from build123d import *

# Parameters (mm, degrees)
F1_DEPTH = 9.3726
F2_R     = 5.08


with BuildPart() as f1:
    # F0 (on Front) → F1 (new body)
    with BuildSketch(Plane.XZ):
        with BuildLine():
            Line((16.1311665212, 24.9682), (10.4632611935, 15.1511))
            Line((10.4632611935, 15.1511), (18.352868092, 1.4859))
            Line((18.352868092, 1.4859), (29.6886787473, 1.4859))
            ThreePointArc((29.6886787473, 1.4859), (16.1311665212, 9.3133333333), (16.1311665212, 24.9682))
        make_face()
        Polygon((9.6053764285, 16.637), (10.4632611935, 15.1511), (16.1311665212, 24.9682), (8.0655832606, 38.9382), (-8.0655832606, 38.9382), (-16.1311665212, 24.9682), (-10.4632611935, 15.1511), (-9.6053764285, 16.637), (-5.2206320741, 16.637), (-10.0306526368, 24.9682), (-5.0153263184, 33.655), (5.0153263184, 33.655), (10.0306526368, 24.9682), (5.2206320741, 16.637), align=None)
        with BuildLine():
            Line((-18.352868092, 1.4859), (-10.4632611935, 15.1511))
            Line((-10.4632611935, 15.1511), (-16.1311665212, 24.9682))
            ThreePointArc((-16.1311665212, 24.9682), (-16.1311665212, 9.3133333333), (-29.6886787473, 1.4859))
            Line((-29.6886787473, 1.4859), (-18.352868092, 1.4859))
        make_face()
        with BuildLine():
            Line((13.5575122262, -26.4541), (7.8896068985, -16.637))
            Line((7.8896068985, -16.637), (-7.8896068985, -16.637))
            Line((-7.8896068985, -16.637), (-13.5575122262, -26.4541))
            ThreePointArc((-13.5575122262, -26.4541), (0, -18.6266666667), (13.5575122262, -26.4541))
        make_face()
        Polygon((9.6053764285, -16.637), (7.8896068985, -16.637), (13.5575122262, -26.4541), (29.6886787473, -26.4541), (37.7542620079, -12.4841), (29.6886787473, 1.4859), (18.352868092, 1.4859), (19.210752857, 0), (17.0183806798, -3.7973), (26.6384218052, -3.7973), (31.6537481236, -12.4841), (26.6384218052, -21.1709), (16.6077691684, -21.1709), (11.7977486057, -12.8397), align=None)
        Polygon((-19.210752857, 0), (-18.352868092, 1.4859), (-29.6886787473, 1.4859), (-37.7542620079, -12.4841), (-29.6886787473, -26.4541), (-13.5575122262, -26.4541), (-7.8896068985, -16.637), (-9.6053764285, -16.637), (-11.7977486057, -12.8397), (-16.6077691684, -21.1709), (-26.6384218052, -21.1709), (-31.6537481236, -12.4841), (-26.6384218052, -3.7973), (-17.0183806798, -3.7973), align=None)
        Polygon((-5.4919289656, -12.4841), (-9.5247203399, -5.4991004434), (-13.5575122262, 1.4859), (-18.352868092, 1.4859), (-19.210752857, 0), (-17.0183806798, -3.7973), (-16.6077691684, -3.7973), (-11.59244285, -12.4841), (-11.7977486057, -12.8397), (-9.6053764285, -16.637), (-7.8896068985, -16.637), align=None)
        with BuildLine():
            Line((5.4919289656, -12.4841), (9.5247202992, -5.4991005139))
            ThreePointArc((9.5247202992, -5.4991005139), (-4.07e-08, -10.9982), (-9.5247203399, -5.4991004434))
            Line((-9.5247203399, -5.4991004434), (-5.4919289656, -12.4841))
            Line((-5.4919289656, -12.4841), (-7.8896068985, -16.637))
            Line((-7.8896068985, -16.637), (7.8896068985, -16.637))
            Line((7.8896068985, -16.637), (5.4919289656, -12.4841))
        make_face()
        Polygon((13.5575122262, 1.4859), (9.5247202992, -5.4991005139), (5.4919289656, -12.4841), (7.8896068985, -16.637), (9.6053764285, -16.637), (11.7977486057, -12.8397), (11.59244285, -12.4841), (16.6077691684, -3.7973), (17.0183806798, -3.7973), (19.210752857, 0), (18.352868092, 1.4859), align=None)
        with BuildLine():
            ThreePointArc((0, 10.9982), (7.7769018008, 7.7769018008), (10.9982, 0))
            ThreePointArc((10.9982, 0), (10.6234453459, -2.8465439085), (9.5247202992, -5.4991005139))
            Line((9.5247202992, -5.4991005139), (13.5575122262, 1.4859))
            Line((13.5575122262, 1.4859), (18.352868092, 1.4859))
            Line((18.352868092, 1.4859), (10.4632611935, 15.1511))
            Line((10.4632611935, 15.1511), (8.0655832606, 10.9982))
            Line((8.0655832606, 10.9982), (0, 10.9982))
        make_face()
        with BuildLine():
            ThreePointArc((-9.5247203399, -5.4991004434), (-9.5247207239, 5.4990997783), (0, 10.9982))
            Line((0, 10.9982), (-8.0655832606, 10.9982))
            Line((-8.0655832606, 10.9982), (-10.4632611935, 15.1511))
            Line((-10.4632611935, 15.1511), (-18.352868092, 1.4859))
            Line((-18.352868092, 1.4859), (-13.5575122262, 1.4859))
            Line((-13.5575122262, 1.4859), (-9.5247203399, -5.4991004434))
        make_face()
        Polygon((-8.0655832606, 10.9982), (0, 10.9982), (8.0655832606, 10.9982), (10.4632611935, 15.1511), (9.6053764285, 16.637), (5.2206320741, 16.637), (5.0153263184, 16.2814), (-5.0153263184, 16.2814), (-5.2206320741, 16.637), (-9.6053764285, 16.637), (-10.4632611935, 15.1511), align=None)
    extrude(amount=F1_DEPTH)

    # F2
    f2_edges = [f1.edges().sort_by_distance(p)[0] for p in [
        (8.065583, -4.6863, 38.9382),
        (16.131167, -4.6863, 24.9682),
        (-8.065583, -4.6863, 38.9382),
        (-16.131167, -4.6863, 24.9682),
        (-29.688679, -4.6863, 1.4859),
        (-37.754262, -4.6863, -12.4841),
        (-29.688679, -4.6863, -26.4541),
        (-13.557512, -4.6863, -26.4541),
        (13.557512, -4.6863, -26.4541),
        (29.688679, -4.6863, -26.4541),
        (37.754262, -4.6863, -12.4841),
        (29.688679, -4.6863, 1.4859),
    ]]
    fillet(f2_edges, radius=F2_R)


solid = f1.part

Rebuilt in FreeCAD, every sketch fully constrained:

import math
import FreeCAD as App
import Part
import Sketcher
from FreeCAD import Vector
Q = App.Units.Quantity


def edges_at(feature, points):
    """Names of the edges that pass closest to the given points."""
    edges = feature.Shape.Edges
    near = lambda p: min(range(len(edges)), key=lambda i: edges[i].distToShape(Part.Vertex(*p))[0])
    return sorted({f"Edge{near(p) + 1}" for p in points})


def add_polygon(sketch, points):
    """Adds a closed chain of lines whose ends are joined by coincident constraints."""
    first, n = sketch.GeometryCount, len(points)
    for a, b in zip(points, points[1:] + points[:1]):
        sketch.addGeometry(Part.LineSegment(App.Vector(*a, 0), App.Vector(*b, 0)), False)
    for i in range(n):
        sketch.addConstraint(Sketcher.Constraint("Coincident", first + i, 2, first + (i + 1) % n, 1))

doc = App.newDocument("Part")
body = doc.addObject("PartDesign::Body", "Body")

# Sketch on XZ plane
sketch1 = body.newObject("Sketcher::SketchObject", "Sketch")
sketch1.AttachmentSupport = (doc.getObject("XZ_Plane"), [""])
sketch1.MapMode = "FlatFace"
sketch1.addGeometry(Part.ArcOfCircle(Part.Circle(Vector(0, -34.28, 0), Vector(0, 0, 1), 15.65), math.radians(30), math.radians(150)), False)  # 0
sketch1.addGeometry(Part.LineSegment(Vector(13.56, -26.45, 0), Vector(29.69, -26.45, 0)), False)  # 1
sketch1.addGeometry(Part.LineSegment(Vector(29.69, -26.45, 0), Vector(37.75, -12.48, 0)), False)  # 2
sketch1.addGeometry(Part.LineSegment(Vector(37.75, -12.48, 0), Vector(29.69, 1.49, 0)), False)  # 3
sketch1.addGeometry(Part.ArcOfCircle(Part.Circle(Vector(29.69, 17.14, 0), Vector(0, 0, 1), 15.65), math.radians(150), math.radians(270)), False)  # 4
sketch1.addGeometry(Part.LineSegment(Vector(16.13, 24.97, 0), Vector(8.07, 38.94, 0)), False)  # 5
sketch1.addGeometry(Part.LineSegment(Vector(8.07, 38.94, 0), Vector(-8.07, 38.94, 0)), False)  # 6
sketch1.addGeometry(Part.LineSegment(Vector(-8.07, 38.94, 0), Vector(-16.13, 24.97, 0)), False)  # 7
sketch1.addGeometry(Part.ArcOfCircle(Part.Circle(Vector(-29.69, 17.14, 0), Vector(0, 0, 1), 15.65), math.radians(-90), math.radians(30)), False)  # 8
sketch1.addGeometry(Part.LineSegment(Vector(-29.69, 1.49, 0), Vector(-37.75, -12.48, 0)), False)  # 9
sketch1.addGeometry(Part.LineSegment(Vector(-37.75, -12.48, 0), Vector(-29.69, -26.45, 0)), False)  # 10
sketch1.addGeometry(Part.LineSegment(Vector(-29.69, -26.45, 0), Vector(-13.56, -26.45, 0)), False)  # 11
add_polygon(sketch1, [(-11.8, -12.84), (-16.61, -21.17), (-26.64, -21.17), (-31.65, -12.48), (-26.64, -3.8), (-16.61, -3.8), (-11.59, -12.48)])  # lines 12-18
add_polygon(sketch1, [(26.64, -3.8), (31.65, -12.48), (26.64, -21.17), (16.61, -21.17), (11.8, -12.84), (11.59, -12.48), (16.61, -3.8)])  # lines 19-25
sketch1.addGeometry(Part.ArcOfCircle(Part.Circle(Vector(0, 0, 0), Vector(0, 0, 1), 11), math.radians(90), math.radians(330)), False)  # 26
sketch1.addGeometry(Part.ArcOfCircle(Part.Circle(Vector(0, 0, 0), Vector(0, 0, 1), 11), math.radians(0), math.radians(90)), False)  # 27
sketch1.addGeometry(Part.ArcOfCircle(Part.Circle(Vector(0, 0, 0), Vector(0, 0, 1), 11), math.radians(-30), math.radians(0)), False)  # 28
add_polygon(sketch1, [(10.03, 24.97), (5.22, 16.64), (5.02, 16.28), (-5.02, 16.28), (-5.22, 16.64), (-10.03, 24.97), (-5.02, 33.66), (5.02, 33.66)])  # lines 29-36
sketch1.addConstraint([
    Sketcher.Constraint("Coincident", 0, 1, 1, 1),
    Sketcher.Constraint("Coincident", 1, 2, 2, 1),
    Sketcher.Constraint("Coincident", 2, 2, 3, 1),
    Sketcher.Constraint("Coincident", 3, 2, 4, 2),
    Sketcher.Constraint("Coincident", 4, 1, 5, 1),
    Sketcher.Constraint("Coincident", 5, 2, 6, 1),
    Sketcher.Constraint("Coincident", 6, 2, 7, 1),
    Sketcher.Constraint("Coincident", 7, 2, 8, 2),
    Sketcher.Constraint("Coincident", 8, 1, 9, 1),
    Sketcher.Constraint("Coincident", 9, 2, 10, 1),
    Sketcher.Constraint("Coincident", 10, 2, 11, 1),
    Sketcher.Constraint("Coincident", 11, 2, 0, 2),
    Sketcher.Constraint("Tangent", 26, 1, 27, 2),
    Sketcher.Constraint("Tangent", 27, 1, 28, 2),
    Sketcher.Constraint("Tangent", 28, 1, 26, 2),
    Sketcher.Constraint("Horizontal", 1),
    Sketcher.Constraint("Horizontal", 6),
    Sketcher.Constraint("Horizontal", 11),
    Sketcher.Constraint("Horizontal", 13),
    Sketcher.Constraint("Horizontal", 16),
    Sketcher.Constraint("Horizontal", 21),
    Sketcher.Constraint("Horizontal", 25),
    Sketcher.Constraint("Horizontal", 31),
    Sketcher.Constraint("Horizontal", 35),
    Sketcher.Constraint("Coincident", 26, 3, -1, 1),
    Sketcher.Constraint("Equal", 0, 4),
    Sketcher.Constraint("Equal", 4, 8),
    Sketcher.Constraint("Symmetric", 4, 3, 8, 3, -2),
    Sketcher.Constraint("Symmetric", 2, 2, 9, 2, -2),
    Sketcher.Constraint("Symmetric", 1, 2, 10, 2, -2),
    Sketcher.Constraint("Symmetric", 14, 2, 19, 2, -2),
    Sketcher.Constraint("Symmetric", 13, 2, 20, 2, -2),
    Sketcher.Constraint("Symmetric", 18, 2, 22, 2, -2),
    Sketcher.Constraint("Symmetric", 17, 2, 23, 2, -2),
    Sketcher.Constraint("Symmetric", 16, 2, 24, 2, -2),
    Sketcher.Constraint("Symmetric", 29, 2, 32, 2, -2),
    Sketcher.Constraint("Symmetric", 33, 2, 36, 2, -2),
    Sketcher.Constraint("PointOnObject", 0, 3, -2),
    Sketcher.Constraint("PointOnObject", 26, 1, -2),
    Sketcher.Constraint("PointOnObject", 27, 1, -1),
    Sketcher.Constraint("Parallel", 3, 5),
    Sketcher.Constraint("Parallel", 2, 7),
    Sketcher.Constraint("Parallel", 7, 9),
    Sketcher.Constraint("Parallel", 5, 10),
    Sketcher.Constraint("Parallel", 9, 12),
    Sketcher.Constraint("Parallel", 10, 14),
    Sketcher.Constraint("Parallel", 12, 15),
    Sketcher.Constraint("Parallel", 14, 17),
    Sketcher.Constraint("Parallel", 15, 18),
    Sketcher.Constraint("Parallel", 17, 19),
    Sketcher.Constraint("Parallel", 19, 22),
    Sketcher.Constraint("Parallel", 24, 29),
    Sketcher.Constraint("Parallel", 29, 30),
    Sketcher.Constraint("Parallel", 23, 32),
    Sketcher.Constraint("Parallel", 30, 34),
    Sketcher.Constraint("Parallel", 33, 36),
    Sketcher.Constraint("Horizontal", 4, 1, 7, 2),
    Sketcher.Constraint("Horizontal", 9, 2, 14, 2),
    Sketcher.Constraint("Horizontal", 14, 2, 17, 2),
    Sketcher.Constraint("Horizontal", 7, 2, 33, 2),
    Sketcher.Constraint("Vertical", 4, 3, 1, 2),
    Sketcher.Constraint("Vertical", 1, 2, 3, 2),
    Sketcher.Constraint("Vertical", 13, 2, 15, 2),
    Sketcher.Constraint("Vertical", 31, 2, 34, 2),
    Sketcher.Constraint("Equal", 1, 6),
    Sketcher.Constraint("Equal", 25, 31),
    Sketcher.Constraint("Equal", 3, 5),
    Sketcher.Constraint("Equal", 22, 29),
    Sketcher.Constraint("Equal", 23, 30),
    Sketcher.Constraint("Angle", 2, Q("60 deg")),
    Sketcher.Constraint("Radius", 26, Q("0.433 in")),
    Sketcher.Constraint("DistanceY", 1, 2, 3, 2, Q("1.1 in")),
    Sketcher.Constraint("DistanceY", 26, 1, 4, 1, Q("0.55 in")),
    Sketcher.Constraint("DistanceY", 32, 2, 34, 2, Q("0.67 in")),
    Sketcher.Constraint("DistanceY", -1, 1, 29, 2, Q("0.655 in")),
    Sketcher.Constraint("DistanceY", 23, 2, 28, 1, Q("0.275 in")),
    Sketcher.Constraint("DistanceY", 0, 1, -1, 1, Q("1.0415 in")),
    Sketcher.Constraint("Radius", 0, 15.654867),
    Sketcher.Constraint("DistanceY", 0, 3, 4, 3, Q("2.0245 in")),
    Sketcher.Constraint("DistanceX", 13, 2, 13, 1, 10.030653),
    Sketcher.Constraint("DistanceX", 12, 2, -1, 1, 16.607769),
])
pad1 = body.newObject("PartDesign::Pad", "Pad")
pad1.Profile = sketch1
pad1.Length = Q("0.369 in")
doc.recompute()

fillet = body.newObject("PartDesign::Fillet", "Fillet")
fillet.Base = (pad1, edges_at(pad1, [
    (8.066, -4.686, 38.938),
    (16.131, -4.686, 24.968),
    (-8.066, -4.686, 38.938),
    (-16.131, -4.686, 24.968),
    (-29.689, -4.686, 1.486),
    (-37.754, -4.686, -12.484),
    (-29.689, -4.686, -26.454),
    (-13.558, -4.686, -26.454),
    (13.558, -4.686, -26.454),
    (29.689, -4.686, -26.454),
    (37.754, -4.686, -12.484),
    (29.689, -4.686, 1.486),
]))
fillet.Radius = Q("0.2 in")

doc.recompute()
